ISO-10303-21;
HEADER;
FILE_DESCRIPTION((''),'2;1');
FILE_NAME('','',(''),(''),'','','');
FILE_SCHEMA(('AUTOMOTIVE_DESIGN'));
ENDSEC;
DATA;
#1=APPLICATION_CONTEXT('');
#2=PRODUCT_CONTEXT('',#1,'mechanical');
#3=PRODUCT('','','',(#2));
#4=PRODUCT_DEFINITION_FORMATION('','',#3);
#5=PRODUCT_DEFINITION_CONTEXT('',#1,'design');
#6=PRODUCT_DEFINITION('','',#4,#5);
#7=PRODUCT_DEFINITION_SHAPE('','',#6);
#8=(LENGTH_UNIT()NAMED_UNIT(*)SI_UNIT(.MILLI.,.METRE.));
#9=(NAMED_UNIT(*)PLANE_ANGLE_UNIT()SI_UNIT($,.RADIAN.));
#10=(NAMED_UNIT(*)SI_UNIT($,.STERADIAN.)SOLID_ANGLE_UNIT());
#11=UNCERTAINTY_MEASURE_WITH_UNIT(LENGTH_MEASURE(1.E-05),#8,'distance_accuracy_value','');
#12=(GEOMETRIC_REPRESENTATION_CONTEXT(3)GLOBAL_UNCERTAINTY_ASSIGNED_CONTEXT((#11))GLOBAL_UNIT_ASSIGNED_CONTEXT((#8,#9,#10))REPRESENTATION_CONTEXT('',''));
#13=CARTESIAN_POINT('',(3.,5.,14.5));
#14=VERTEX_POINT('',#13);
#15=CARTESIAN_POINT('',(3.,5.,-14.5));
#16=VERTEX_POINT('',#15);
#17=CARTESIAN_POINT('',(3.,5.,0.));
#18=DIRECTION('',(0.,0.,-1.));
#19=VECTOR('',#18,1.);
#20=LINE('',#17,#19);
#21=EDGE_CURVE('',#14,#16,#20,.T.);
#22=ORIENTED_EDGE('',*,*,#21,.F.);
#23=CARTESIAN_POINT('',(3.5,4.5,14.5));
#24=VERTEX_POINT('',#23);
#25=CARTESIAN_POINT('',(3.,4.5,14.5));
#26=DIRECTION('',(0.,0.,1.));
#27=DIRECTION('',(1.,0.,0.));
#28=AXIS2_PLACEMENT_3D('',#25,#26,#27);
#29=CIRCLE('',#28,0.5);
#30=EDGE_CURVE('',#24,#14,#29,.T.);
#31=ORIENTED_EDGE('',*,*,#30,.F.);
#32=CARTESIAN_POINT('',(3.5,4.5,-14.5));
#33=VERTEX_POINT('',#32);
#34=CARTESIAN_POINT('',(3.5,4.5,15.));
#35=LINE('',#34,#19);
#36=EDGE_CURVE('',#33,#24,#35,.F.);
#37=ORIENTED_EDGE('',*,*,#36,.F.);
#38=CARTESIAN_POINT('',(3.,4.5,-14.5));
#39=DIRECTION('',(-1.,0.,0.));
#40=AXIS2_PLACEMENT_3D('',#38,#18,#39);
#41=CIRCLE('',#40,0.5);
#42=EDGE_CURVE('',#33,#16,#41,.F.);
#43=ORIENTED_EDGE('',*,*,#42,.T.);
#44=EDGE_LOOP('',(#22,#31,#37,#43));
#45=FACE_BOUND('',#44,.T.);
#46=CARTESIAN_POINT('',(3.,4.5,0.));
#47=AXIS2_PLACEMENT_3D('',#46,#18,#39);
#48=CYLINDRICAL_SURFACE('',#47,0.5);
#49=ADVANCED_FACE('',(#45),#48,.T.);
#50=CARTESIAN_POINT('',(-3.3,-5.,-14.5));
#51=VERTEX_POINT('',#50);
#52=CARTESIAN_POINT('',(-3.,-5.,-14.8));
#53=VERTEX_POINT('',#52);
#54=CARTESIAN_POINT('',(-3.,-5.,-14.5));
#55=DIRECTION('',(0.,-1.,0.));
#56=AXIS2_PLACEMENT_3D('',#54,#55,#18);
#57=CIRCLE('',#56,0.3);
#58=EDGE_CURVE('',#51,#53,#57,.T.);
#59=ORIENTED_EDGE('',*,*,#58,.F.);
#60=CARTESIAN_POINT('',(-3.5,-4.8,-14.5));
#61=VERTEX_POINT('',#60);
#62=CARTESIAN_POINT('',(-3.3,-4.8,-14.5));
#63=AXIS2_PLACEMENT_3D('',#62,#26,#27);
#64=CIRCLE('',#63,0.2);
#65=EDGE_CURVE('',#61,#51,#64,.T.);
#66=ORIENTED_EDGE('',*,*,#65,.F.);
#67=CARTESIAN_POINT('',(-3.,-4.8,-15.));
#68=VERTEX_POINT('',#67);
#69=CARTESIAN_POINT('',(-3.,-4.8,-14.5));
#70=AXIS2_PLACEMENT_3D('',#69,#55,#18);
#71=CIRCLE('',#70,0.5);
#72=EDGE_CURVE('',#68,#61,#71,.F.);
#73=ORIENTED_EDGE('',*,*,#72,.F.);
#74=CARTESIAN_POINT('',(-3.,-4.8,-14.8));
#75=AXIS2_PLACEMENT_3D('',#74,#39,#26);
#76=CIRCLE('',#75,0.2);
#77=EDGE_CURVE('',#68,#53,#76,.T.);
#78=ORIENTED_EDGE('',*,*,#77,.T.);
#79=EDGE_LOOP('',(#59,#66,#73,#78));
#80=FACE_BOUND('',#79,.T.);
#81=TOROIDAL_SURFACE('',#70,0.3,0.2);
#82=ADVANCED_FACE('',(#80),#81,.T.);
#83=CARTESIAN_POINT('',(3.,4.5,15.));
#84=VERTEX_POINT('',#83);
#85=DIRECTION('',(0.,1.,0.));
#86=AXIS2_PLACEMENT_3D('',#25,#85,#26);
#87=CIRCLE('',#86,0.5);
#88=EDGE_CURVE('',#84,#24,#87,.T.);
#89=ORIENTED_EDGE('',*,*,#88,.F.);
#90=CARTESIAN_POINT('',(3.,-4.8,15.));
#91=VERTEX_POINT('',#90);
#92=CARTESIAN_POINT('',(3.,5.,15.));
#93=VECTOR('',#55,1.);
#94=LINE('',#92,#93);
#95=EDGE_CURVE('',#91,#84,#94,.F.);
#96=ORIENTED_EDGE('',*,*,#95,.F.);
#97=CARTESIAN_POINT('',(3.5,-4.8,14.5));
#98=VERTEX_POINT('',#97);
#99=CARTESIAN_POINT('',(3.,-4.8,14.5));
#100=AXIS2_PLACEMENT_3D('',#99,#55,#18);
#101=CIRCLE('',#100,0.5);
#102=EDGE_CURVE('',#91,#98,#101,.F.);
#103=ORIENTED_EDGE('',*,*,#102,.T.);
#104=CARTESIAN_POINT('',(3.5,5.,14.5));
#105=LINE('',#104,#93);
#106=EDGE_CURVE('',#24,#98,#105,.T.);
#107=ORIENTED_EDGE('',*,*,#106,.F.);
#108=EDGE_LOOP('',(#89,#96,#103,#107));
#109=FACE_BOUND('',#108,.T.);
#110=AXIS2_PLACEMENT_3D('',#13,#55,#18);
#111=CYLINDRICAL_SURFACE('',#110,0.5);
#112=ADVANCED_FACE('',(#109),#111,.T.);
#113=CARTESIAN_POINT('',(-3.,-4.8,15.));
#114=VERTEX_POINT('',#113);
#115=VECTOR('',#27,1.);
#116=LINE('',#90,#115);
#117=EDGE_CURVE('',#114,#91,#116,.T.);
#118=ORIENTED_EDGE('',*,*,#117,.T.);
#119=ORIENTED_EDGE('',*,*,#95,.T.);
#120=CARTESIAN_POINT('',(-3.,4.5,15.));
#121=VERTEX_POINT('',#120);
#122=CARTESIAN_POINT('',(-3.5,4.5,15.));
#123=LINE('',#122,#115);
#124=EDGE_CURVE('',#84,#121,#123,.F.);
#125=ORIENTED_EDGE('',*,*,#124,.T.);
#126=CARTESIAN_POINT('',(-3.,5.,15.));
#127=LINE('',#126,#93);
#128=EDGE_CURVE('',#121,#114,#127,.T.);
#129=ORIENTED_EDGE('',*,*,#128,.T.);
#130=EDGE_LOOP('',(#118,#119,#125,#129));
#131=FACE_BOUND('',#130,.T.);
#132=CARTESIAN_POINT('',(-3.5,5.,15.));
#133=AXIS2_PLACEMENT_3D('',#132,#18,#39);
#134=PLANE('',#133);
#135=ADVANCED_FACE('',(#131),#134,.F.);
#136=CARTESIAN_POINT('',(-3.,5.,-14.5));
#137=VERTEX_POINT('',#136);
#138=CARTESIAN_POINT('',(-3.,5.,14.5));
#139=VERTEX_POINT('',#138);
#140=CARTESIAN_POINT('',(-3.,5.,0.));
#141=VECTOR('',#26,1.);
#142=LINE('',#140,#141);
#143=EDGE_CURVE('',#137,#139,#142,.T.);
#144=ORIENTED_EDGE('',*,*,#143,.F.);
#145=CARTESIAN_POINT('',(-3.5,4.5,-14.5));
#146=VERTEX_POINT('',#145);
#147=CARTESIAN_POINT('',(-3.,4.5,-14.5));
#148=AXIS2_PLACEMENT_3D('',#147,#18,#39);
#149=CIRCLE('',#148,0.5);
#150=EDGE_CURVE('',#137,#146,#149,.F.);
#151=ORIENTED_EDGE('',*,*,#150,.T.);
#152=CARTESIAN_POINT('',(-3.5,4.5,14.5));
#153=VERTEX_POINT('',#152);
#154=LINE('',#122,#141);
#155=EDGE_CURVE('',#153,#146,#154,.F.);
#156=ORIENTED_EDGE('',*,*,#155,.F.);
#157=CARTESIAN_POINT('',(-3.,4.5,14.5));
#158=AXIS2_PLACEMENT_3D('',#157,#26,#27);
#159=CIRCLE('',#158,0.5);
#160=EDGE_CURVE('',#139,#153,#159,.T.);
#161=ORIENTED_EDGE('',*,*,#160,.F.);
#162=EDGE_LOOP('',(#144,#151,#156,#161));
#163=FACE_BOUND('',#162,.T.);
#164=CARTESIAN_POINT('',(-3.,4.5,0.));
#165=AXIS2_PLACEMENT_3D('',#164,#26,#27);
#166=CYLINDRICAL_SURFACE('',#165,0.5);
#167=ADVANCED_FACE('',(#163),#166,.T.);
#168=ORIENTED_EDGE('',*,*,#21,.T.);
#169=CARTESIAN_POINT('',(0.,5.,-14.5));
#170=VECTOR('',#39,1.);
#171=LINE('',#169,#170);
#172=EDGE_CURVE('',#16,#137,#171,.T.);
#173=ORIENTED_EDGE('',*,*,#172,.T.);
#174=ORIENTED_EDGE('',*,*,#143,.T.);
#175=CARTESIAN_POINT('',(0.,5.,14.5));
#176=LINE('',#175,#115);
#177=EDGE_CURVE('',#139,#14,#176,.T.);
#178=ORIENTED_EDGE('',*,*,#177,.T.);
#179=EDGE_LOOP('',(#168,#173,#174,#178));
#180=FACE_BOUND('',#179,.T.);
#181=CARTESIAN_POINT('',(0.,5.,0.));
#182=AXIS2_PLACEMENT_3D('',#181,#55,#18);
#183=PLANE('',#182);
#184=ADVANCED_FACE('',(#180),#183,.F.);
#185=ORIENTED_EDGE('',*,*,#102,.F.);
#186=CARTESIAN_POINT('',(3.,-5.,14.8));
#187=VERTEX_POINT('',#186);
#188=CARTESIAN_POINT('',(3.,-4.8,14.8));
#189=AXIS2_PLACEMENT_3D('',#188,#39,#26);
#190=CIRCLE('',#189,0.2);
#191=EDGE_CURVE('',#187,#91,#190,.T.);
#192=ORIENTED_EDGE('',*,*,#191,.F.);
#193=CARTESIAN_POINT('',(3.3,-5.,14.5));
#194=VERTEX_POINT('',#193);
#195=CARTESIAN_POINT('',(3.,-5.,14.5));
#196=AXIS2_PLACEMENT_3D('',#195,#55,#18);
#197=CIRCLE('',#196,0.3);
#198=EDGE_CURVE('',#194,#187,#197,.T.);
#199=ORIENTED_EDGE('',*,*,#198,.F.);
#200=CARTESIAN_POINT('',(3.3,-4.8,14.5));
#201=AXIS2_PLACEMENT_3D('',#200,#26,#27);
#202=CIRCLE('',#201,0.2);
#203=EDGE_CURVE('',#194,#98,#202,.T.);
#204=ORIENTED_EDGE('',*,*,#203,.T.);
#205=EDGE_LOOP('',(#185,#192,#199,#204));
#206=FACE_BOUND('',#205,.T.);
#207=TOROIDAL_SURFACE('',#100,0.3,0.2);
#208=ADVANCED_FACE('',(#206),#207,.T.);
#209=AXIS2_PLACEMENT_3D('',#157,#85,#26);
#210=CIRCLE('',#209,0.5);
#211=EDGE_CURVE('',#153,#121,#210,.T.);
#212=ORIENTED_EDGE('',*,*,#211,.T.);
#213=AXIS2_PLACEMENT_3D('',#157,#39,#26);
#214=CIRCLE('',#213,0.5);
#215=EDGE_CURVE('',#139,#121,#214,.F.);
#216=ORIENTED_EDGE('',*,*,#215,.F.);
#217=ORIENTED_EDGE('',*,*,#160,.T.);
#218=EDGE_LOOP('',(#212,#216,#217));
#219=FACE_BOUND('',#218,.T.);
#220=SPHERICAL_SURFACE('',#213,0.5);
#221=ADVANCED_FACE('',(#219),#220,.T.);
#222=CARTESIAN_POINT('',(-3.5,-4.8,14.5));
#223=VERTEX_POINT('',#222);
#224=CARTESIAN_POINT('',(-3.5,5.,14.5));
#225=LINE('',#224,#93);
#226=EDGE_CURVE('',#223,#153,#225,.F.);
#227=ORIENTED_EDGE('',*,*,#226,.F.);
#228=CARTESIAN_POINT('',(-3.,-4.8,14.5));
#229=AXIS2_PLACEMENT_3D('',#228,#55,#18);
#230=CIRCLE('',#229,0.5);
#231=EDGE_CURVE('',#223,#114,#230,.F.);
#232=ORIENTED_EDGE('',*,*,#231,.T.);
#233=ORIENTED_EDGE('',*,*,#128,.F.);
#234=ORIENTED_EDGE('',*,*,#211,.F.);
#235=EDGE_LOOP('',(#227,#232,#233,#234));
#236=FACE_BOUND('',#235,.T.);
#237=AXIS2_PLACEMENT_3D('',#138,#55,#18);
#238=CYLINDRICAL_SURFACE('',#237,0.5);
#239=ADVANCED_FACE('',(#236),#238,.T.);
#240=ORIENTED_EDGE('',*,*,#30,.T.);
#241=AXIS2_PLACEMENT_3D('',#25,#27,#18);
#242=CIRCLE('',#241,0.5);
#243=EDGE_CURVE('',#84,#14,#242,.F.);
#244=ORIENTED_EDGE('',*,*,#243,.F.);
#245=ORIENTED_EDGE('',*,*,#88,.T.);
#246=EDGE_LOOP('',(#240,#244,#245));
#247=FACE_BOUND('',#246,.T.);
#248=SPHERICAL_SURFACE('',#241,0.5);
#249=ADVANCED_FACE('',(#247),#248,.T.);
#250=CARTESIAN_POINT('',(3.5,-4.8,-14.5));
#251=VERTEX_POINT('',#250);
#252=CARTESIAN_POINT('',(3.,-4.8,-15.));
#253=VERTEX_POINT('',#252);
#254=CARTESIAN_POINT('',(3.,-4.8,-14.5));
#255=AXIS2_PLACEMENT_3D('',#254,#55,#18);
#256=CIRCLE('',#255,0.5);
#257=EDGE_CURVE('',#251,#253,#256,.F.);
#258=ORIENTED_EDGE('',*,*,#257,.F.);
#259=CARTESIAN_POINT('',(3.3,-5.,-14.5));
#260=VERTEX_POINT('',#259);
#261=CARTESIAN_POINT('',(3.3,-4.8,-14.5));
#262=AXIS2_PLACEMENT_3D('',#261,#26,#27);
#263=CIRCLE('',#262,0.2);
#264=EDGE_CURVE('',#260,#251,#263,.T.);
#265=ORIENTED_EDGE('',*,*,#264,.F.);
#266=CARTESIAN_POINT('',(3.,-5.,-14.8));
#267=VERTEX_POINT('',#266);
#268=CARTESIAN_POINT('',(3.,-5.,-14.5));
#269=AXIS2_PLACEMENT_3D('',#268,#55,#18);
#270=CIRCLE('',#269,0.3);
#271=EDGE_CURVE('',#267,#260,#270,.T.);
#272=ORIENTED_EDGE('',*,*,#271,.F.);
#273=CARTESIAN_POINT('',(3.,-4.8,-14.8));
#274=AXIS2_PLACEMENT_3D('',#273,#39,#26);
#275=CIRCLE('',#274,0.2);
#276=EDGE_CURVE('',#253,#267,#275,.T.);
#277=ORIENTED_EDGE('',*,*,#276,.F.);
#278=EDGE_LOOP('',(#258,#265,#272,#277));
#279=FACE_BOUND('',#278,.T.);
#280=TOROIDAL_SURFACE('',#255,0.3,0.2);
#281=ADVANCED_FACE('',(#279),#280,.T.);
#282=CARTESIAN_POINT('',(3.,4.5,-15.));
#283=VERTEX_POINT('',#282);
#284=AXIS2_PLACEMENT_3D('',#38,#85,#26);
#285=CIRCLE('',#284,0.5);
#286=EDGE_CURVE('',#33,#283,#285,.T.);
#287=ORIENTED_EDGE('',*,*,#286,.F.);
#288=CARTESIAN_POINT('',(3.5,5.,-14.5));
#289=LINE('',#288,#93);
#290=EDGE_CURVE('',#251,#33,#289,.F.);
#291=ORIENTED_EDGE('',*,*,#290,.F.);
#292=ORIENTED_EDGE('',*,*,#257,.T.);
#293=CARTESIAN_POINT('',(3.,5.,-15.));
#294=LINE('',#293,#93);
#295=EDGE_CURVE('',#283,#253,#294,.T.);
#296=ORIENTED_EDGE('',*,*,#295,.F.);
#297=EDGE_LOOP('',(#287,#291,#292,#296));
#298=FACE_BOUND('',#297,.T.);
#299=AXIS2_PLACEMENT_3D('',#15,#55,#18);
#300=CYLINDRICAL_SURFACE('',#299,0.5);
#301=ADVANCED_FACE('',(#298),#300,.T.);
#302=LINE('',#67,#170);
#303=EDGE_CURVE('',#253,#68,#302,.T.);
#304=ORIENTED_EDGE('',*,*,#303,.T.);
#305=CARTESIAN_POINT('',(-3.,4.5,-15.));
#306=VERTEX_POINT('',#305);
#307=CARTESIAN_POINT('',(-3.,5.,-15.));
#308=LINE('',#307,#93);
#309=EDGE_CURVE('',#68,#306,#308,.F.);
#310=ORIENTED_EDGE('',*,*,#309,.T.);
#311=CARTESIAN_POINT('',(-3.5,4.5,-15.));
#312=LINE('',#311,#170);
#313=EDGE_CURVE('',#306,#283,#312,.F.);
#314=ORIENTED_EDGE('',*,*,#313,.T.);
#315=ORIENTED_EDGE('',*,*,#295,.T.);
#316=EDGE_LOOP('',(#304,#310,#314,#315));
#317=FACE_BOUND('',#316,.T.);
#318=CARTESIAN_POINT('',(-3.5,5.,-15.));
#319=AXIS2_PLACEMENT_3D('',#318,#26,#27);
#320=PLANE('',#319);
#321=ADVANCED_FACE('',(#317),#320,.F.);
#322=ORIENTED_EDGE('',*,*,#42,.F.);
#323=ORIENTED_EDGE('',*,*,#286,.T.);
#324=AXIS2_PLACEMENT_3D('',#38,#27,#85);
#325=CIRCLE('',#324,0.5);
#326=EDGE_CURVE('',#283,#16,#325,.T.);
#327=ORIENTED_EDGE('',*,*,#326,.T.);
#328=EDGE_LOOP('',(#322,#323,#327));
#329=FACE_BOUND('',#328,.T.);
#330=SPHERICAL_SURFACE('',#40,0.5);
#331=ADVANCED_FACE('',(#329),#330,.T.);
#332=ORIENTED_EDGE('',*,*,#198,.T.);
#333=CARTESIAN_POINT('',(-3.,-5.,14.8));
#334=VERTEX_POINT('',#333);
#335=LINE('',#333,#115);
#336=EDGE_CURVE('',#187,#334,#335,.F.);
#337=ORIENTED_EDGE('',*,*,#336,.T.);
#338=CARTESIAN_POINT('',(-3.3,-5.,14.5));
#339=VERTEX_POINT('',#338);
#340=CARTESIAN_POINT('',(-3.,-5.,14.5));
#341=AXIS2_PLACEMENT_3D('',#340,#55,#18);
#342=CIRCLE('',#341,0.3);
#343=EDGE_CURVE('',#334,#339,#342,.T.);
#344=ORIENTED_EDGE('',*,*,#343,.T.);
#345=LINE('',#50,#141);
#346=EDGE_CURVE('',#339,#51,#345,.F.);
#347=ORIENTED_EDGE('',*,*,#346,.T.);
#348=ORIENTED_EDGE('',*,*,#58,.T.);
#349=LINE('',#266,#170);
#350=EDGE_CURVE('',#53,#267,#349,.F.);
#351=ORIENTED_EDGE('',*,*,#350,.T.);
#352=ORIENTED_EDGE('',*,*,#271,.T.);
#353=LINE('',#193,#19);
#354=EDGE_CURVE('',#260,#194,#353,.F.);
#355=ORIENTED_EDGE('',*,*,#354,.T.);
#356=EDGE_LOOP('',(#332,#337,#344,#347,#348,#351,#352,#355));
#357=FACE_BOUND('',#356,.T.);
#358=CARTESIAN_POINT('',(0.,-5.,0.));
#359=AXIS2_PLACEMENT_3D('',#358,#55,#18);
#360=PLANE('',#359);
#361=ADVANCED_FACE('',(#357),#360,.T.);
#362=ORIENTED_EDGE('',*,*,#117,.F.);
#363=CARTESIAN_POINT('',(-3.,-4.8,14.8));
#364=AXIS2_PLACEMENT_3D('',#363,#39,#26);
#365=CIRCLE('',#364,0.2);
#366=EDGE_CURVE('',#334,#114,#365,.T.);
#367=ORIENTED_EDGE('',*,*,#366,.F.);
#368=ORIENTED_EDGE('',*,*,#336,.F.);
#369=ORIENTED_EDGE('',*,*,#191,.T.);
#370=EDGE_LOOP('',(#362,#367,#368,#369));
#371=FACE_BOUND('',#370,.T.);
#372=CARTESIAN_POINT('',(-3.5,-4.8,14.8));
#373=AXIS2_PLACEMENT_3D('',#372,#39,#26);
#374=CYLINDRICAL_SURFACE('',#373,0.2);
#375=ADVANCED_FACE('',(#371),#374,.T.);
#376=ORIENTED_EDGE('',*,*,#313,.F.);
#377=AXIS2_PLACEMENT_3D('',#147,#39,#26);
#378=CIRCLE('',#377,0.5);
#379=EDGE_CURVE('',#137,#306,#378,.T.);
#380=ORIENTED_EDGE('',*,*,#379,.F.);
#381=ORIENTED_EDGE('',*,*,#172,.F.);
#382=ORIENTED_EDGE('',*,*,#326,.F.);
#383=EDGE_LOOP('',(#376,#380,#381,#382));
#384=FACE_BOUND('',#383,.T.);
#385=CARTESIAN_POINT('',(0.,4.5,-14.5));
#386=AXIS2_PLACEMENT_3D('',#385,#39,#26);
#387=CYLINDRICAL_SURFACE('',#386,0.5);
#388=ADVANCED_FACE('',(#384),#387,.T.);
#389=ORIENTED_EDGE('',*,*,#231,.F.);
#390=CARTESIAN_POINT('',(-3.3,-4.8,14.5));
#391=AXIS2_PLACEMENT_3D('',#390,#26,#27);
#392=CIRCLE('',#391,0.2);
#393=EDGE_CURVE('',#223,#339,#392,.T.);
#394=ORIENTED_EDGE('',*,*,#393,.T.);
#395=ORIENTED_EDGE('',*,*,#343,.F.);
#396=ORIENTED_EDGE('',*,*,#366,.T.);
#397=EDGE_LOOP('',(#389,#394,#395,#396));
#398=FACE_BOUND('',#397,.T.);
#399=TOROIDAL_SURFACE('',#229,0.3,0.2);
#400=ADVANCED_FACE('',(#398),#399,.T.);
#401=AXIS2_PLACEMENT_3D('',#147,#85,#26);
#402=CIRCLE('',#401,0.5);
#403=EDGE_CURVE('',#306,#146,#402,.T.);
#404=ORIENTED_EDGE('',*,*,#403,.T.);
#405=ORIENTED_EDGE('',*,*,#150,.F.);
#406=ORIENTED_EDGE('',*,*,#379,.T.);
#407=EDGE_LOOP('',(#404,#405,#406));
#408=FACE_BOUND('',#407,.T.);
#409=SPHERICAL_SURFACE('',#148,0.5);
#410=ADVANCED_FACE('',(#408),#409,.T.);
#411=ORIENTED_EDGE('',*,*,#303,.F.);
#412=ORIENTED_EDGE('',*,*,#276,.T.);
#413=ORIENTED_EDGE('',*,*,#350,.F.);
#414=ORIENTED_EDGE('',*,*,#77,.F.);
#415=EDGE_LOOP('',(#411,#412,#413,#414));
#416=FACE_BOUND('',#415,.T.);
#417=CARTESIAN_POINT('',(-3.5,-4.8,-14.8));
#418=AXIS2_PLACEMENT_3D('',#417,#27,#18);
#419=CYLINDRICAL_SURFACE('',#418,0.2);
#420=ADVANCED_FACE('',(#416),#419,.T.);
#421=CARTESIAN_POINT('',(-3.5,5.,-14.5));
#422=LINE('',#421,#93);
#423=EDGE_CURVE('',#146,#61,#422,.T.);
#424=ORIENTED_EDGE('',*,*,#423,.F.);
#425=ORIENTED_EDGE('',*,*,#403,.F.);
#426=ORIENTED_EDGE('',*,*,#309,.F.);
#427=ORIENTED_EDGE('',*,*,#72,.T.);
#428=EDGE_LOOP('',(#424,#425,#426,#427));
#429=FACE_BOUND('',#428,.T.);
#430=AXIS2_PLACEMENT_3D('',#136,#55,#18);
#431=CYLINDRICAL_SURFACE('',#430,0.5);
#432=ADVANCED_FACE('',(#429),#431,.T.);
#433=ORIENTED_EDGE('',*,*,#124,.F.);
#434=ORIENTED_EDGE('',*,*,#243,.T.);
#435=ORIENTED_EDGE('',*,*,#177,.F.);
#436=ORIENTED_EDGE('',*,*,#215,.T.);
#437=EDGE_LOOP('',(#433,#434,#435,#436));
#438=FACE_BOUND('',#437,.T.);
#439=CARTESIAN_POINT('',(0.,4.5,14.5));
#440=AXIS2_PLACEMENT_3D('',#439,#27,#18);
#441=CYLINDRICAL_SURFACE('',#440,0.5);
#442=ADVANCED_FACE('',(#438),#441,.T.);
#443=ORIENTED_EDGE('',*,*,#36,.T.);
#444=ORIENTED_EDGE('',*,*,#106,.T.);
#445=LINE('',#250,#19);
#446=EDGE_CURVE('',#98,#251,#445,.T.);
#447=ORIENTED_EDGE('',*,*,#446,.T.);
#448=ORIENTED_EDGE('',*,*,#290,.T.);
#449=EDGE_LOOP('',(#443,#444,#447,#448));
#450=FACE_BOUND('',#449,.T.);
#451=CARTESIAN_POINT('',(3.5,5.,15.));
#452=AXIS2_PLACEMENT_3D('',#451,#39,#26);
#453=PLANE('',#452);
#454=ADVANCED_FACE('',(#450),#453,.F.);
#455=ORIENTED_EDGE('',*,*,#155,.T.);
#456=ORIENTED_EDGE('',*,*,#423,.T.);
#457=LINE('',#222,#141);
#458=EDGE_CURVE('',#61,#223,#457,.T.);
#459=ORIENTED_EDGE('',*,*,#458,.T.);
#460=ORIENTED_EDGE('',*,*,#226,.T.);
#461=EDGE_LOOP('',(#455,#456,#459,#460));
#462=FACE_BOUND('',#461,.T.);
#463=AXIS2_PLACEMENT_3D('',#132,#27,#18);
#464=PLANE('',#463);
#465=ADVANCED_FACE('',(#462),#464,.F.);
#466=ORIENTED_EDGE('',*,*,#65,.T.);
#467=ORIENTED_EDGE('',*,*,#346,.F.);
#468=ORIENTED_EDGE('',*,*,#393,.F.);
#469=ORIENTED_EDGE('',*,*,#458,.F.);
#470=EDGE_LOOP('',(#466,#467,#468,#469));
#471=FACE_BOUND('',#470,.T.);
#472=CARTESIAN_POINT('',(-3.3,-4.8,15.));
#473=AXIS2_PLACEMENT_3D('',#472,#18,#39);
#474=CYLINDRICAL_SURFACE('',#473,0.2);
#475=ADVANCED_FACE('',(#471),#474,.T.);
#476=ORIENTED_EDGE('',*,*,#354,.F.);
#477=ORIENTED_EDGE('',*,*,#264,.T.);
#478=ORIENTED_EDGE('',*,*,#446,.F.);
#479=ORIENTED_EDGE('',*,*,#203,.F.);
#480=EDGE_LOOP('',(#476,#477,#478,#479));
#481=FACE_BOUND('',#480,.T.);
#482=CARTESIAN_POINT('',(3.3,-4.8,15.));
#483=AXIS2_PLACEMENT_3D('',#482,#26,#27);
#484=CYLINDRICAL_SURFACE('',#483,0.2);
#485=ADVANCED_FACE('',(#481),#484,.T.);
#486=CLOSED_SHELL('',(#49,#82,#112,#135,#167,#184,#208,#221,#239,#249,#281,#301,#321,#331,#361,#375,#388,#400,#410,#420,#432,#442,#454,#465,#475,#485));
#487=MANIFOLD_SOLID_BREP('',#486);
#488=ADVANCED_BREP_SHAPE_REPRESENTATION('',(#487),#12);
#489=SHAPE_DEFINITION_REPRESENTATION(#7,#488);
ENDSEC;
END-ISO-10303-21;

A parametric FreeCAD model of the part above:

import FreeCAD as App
import Part
import Sketcher
from FreeCAD import Vector


def edges_at(feature, points):
    """Names of the edges that pass closest to the given points."""
    edges = feature.Shape.Edges
    near = lambda p: min(range(len(edges)), key=lambda i: edges[i].distToShape(Part.Vertex(*p))[0])
    return sorted({f"Edge{near(p) + 1}" for p in points})


def add_polygon(sketch, points):
    """Adds a closed chain of lines whose ends are joined by coincident constraints."""
    first, n = sketch.GeometryCount, len(points)
    for a, b in zip(points, points[1:] + points[:1]):
        sketch.addGeometry(Part.LineSegment(App.Vector(*a, 0), App.Vector(*b, 0)), False)
    for i in range(n):
        sketch.addConstraint(Sketcher.Constraint("Coincident", first + i, 2, first + (i + 1) % n, 1))

doc = App.newDocument("Part")
body = doc.addObject("PartDesign::Body", "Body")

# Sketch on XZ plane
sketch1 = doc.addObject("Sketcher::SketchObject", "Sketch")
body.addObject(sketch1)
sketch1.AttachmentSupport = (doc.XZ_Plane, [""])
sketch1.MapMode = "FlatFace"
add_polygon(sketch1, [(-4, -15), (-4, 15), (4, 15), (4, -15)])  # lines 0-3
sketch1.addConstraint([
    Sketcher.Constraint("Vertical", 0),
    Sketcher.Constraint("Horizontal", 1),
    Sketcher.Constraint("Vertical", 2),
    Sketcher.Constraint("Horizontal", 3),
    Sketcher.Constraint("Symmetric", 0, 2, 2, 2, -1, 1),
    Sketcher.Constraint("DistanceX", 1, 1, 1, 2, 7.0),
    Sketcher.Constraint("DistanceY", 0, 1, 0, 2, 30.0),
])
pad1 = doc.addObject("PartDesign::Pad", "Pad")
body.addObject(pad1)
pad1.Profile = sketch1
pad1.Length = 10
pad1.Midplane = True
doc.recompute()

fillet = doc.addObject("PartDesign::Fillet", "Fillet")
body.addObject(fillet)
fillet.Base = (pad1, edges_at(pad1, [
    (-3.5, 5, 0),
    (0, 5, 15),
    (3.5, 5, 0),
    (3.5, 0, 15),
    (-3.5, 0, 15),
    (-3.5, 0, -15),
    (3.5, 0, -15),
    (0, 5, -15),
]))
fillet.Radius = 0.5
doc.recompute()

fillet2 = doc.addObject("PartDesign::Fillet", "Fillet001")
body.addObject(fillet2)
fillet2.Base = (fillet, edges_at(fillet, [
    (0, -5, 15),
    (-3.5, -5, 0),
    (0, -5, -15),
    (3.5, -5, 0),
    (3.354, -5, 14.854),
    (-3.354, -5, 14.854),
    (3.354, -5, -14.854),
    (-3.354, -5, -14.854),
]))
fillet2.Radius = 0.2

doc.recompute()
